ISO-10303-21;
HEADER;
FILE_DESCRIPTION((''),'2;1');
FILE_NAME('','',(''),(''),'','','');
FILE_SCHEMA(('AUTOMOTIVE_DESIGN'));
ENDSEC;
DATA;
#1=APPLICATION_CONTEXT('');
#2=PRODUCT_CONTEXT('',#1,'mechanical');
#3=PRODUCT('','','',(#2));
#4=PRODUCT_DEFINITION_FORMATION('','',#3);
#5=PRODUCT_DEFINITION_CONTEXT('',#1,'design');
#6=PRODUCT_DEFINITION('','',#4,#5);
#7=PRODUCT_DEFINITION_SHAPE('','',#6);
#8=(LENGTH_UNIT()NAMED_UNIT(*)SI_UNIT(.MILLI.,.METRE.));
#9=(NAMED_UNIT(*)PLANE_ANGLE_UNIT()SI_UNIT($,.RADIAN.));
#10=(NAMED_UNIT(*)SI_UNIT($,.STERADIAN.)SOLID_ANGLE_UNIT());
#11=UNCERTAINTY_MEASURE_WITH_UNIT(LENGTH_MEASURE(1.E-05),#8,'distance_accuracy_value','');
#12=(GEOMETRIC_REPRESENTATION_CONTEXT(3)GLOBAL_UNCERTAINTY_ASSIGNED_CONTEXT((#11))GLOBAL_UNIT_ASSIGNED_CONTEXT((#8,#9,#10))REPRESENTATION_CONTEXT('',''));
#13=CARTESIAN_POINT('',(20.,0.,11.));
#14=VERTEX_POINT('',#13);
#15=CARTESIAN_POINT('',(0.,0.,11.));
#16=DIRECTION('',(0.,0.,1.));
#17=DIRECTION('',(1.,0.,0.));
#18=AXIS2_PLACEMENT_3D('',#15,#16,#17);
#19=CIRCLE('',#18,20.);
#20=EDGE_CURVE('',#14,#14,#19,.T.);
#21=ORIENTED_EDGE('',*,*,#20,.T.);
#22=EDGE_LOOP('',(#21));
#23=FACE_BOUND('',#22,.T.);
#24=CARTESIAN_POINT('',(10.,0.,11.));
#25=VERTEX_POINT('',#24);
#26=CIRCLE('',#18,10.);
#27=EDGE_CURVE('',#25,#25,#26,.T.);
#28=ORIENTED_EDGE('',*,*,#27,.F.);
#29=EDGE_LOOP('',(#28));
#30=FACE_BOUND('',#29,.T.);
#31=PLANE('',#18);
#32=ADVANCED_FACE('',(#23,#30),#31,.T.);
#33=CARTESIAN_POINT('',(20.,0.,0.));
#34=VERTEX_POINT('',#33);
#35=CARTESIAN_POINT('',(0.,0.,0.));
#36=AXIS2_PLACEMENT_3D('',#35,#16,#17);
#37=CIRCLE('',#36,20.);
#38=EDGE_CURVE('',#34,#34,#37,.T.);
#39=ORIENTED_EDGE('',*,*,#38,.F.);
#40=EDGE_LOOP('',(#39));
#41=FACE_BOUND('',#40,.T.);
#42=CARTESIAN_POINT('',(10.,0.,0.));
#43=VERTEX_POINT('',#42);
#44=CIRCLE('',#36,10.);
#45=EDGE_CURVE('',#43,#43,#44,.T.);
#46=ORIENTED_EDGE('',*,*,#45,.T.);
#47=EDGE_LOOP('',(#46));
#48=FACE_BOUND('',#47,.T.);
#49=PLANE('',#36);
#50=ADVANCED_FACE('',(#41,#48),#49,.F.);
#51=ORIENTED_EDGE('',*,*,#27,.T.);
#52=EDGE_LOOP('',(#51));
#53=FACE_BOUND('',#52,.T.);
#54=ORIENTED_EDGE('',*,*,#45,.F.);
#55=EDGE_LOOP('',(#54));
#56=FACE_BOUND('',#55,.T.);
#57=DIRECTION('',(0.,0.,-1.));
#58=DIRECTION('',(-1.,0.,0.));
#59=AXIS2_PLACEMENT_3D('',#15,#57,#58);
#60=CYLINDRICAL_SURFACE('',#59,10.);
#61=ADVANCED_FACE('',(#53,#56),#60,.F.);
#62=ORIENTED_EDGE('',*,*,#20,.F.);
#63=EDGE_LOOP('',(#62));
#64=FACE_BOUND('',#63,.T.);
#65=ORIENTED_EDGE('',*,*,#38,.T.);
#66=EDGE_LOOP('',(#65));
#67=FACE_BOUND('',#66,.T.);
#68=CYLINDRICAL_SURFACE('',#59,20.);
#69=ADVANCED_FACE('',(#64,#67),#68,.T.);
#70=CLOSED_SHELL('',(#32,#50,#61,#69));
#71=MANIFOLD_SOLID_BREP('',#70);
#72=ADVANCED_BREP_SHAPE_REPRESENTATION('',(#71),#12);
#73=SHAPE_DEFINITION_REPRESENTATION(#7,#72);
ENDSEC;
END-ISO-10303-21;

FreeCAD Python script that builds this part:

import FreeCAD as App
import Part
import Sketcher

doc = App.newDocument("Part")
params = doc.addObject("Spreadsheet::Sheet", "Params")
for row, (alias, value) in enumerate([
    ("sketch1_diameter", "40 mm"),
    ("sketch1_diameter2", "20 mm"),
    ("pad1_length", "11 mm"),
], start=1):
    params.set(f"A{row}", alias)
    params.set(f"B{row}", "=" + value)
    params.setAlias(f"B{row}", alias)

body = doc.addObject("PartDesign::Body", "Body")

sketch1 = body.newObject("Sketcher::SketchObject", "Sketch")
sketch1.AttachmentSupport = (doc.getObject("XY_Plane"), [""])
sketch1.MapMode = "FlatFace"
sketch1.addGeometry([
    Part.Circle(App.Vector(0, 0, 0), App.Vector(0, 0, 1), 20),
    Part.Circle(App.Vector(0, 0, 0), App.Vector(0, 0, 1), 10),
], False)
sketch1.addConstraint([
    Sketcher.Constraint("Coincident", 0, 3, -1, 1),
    Sketcher.Constraint("Coincident", 1, 3, -1, 1),
    Sketcher.Constraint("Diameter", 0, 40.0),
    Sketcher.Constraint("Diameter", 1, 20.0),
])
sketch1.setExpression("Constraints[2]", "Params.sketch1_diameter")
sketch1.setExpression("Constraints[3]", "Params.sketch1_diameter2")
pad1 = body.newObject("PartDesign::Pad", "Pad")
pad1.Profile = sketch1
pad1.setExpression("Length", "Params.pad1_length")

doc.recompute()
